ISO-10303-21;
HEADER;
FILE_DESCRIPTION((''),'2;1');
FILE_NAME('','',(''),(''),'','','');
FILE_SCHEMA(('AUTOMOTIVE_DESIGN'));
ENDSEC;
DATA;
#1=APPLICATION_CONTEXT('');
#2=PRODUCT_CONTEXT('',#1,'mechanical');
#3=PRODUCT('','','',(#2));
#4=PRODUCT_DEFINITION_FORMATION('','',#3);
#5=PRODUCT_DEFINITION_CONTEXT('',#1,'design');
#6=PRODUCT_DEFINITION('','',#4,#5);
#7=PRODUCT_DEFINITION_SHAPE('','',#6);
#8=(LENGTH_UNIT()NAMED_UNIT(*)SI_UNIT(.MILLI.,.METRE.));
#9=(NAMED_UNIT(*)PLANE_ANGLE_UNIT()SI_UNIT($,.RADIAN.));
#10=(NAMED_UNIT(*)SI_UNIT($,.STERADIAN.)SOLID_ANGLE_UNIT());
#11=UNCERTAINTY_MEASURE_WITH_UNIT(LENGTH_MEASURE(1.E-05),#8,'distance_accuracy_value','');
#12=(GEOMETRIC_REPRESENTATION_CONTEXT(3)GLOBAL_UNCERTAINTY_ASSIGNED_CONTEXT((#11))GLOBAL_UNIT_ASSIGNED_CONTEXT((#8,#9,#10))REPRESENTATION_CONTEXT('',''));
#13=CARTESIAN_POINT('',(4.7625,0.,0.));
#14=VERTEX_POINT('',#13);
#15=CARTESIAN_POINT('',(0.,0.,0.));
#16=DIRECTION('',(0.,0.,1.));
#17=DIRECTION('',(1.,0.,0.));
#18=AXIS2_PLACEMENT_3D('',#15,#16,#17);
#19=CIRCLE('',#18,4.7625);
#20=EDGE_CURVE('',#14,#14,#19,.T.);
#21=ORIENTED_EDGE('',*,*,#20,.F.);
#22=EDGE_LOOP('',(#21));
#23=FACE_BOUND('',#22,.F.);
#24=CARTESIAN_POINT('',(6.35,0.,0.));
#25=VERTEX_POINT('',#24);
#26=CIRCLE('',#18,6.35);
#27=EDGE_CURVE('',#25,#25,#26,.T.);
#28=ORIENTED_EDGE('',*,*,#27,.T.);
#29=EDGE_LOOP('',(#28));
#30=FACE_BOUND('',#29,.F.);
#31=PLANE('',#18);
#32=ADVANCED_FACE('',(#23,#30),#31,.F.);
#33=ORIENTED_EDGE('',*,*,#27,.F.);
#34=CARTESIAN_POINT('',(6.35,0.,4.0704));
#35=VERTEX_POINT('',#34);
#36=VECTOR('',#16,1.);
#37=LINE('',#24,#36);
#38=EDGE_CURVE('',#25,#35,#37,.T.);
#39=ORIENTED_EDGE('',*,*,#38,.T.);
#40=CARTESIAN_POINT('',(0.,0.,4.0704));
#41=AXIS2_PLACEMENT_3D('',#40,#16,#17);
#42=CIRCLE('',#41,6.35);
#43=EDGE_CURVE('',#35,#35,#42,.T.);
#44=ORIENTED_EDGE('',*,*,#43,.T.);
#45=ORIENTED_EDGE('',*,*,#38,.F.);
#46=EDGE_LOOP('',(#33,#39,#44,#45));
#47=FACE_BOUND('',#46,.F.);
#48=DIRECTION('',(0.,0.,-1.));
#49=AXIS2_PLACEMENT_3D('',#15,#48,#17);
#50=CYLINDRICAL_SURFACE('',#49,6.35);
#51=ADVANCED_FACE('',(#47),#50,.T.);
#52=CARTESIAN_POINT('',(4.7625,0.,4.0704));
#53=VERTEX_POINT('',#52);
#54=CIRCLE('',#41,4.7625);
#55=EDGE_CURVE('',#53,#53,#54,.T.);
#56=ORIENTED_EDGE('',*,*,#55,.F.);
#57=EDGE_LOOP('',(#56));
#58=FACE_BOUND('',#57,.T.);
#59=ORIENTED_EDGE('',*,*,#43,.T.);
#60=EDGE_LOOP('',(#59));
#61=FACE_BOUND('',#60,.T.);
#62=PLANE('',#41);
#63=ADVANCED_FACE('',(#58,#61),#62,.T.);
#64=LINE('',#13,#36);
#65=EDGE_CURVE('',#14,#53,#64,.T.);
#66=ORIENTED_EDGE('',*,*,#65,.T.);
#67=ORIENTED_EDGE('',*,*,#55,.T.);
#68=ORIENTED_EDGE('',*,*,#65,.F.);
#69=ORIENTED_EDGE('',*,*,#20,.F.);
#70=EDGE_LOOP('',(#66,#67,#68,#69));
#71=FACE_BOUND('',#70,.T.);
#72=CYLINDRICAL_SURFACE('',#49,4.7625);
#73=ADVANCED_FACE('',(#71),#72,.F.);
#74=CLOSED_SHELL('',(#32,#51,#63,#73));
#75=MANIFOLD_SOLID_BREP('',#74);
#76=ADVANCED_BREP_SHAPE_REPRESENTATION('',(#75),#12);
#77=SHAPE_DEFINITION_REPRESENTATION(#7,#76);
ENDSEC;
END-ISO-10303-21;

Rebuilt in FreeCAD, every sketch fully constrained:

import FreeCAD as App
import Part
import Sketcher
from FreeCAD import Vector
Q = App.Units.Quantity

doc = App.newDocument("Part")
body = doc.addObject("PartDesign::Body", "Body")

# Sketch on XY plane
sketch1 = body.newObject("Sketcher::SketchObject", "Sketch")
sketch1.AttachmentSupport = (doc.getObject("XY_Plane"), [""])
sketch1.MapMode = "FlatFace"
sketch1.addGeometry(Part.Circle(Vector(0, 0, 0), Vector(0, 0, 1), 6.3), False)
sketch1.addGeometry(Part.Circle(Vector(0, 0, 0), Vector(0, 0, 1), 4.8), False)
sketch1.addConstraint(Sketcher.Constraint("Coincident", 0, 3, -1, 1))
sketch1.addConstraint(Sketcher.Constraint("Coincident", 1, 3, -1, 1))
sketch1.addConstraint(Sketcher.Constraint("Diameter", 0, Q("0.5 in")))
sketch1.addConstraint(Sketcher.Constraint("Diameter", 1, Q("0.375 in")))
pad1 = body.newObject("PartDesign::Pad", "Pad")
pad1.Profile = sketch1
pad1.Length = 4.0704

doc.recompute()
